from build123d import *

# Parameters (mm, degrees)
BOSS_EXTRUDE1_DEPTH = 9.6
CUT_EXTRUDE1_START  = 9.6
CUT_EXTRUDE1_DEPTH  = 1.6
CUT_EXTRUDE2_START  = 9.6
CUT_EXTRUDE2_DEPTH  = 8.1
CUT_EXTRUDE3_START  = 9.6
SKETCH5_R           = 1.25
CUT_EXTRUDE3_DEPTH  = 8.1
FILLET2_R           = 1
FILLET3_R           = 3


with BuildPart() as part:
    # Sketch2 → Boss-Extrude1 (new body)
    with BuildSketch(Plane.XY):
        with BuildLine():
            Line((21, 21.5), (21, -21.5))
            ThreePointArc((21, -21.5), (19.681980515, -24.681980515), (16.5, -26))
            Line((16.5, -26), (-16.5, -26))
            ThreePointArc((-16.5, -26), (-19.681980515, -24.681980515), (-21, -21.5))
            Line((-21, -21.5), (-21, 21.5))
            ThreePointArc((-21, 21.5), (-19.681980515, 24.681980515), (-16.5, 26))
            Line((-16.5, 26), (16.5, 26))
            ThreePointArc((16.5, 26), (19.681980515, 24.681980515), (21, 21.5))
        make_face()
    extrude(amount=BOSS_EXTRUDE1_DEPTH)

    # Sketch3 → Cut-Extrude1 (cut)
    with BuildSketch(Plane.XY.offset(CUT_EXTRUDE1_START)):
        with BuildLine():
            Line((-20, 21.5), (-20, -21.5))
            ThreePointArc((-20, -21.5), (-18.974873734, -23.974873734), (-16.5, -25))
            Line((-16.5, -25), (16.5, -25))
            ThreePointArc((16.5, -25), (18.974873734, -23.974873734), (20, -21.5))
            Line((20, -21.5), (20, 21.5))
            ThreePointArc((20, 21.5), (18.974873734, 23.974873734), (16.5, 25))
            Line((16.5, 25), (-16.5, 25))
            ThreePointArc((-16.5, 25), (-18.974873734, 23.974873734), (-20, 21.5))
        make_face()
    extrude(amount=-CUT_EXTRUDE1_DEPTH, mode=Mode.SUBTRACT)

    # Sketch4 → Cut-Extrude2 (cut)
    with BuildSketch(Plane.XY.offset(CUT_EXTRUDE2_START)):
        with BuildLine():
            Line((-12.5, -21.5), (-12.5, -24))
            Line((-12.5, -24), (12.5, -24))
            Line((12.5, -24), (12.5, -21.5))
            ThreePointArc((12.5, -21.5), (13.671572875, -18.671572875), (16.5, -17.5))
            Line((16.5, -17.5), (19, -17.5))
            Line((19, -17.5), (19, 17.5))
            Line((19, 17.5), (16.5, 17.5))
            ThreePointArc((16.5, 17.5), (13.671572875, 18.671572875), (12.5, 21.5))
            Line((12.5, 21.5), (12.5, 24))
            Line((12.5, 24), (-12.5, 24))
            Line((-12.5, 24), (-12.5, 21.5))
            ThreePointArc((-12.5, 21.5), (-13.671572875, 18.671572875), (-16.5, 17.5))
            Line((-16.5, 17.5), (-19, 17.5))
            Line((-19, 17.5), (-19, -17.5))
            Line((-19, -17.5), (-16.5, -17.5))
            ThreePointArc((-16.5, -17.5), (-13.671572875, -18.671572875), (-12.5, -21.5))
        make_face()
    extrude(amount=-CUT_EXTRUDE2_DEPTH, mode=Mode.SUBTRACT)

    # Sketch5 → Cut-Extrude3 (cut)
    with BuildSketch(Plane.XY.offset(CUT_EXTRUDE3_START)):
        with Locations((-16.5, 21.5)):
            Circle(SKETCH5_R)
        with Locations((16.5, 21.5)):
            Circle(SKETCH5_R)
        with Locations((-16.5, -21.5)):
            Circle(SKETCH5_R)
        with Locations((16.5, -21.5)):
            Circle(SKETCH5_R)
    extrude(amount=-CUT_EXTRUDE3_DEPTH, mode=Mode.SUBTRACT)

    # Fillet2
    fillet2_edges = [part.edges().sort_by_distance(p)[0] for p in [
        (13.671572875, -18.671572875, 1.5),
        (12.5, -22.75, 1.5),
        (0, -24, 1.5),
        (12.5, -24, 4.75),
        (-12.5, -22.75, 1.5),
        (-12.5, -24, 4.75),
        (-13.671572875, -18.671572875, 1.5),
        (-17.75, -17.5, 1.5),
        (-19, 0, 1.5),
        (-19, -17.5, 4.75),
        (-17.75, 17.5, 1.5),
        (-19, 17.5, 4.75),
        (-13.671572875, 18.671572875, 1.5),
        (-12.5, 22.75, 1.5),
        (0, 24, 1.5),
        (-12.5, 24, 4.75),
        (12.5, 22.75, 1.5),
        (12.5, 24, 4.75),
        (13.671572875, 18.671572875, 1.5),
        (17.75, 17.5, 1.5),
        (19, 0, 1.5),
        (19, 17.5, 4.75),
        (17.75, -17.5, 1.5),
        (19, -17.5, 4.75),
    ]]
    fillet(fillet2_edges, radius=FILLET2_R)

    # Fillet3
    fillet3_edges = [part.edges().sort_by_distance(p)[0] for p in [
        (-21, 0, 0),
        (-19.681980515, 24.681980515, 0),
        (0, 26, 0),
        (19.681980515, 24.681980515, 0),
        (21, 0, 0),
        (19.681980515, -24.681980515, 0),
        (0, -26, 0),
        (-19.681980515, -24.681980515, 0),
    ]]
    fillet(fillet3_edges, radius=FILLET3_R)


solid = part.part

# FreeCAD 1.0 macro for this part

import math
import FreeCAD as App
import Part
import Sketcher
Q = App.Units.Quantity


def edges_at(feature, points):
    """Names of the edges that pass closest to the given points."""
    edges = feature.Shape.Edges
    near = lambda p: min(range(len(edges)), key=lambda i: edges[i].distToShape(Part.Vertex(*p))[0])
    return sorted({f"Edge{near(p) + 1}" for p in points})

doc = App.newDocument("Part")
params = doc.addObject("Spreadsheet::Sheet", "Params")
for row, (alias, value) in enumerate([
    ("sketch1_radius", "4.5 mm"),
    ("sketch1_width", "33 mm"),
    ("sketch1_height", "43 mm"),
    ("pad1_length", "9.6 mm"),
    ("sketch2_radius", "3.5 mm"),
    ("sketch2_width", "33 mm"),
    ("sketch2_height", "43 mm"),
    ("pocket1_length", "1.6 mm"),
    ("sketch3_radius", "4 mm"),
    ("sketch3_width", "25 mm"),
    ("sketch3_height", "35 mm"),
    ("sketch3_width2", "2.5 mm"),
    ("pocket2_length", "8.1 mm"),
    ("sketch4_diameter", "2.5 mm"),
    ("pocket3_length", "8.1 mm"),
    ("fillet_radius", "1 mm"),
    ("fillet2_radius", "3 mm"),
], start=1):
    params.set(f"A{row}", alias)
    params.set(f"B{row}", "=" + value)
    params.setAlias(f"B{row}", alias)

body = doc.addObject("PartDesign::Body", "Body")

# Sketch on XY plane
sketch1 = body.newObject("Sketcher::SketchObject", "Sketch")
sketch1.AttachmentSupport = (doc.getObject("XY_Plane"), [""])
sketch1.MapMode = "FlatFace"
sketch1.addGeometry([
    Part.LineSegment(App.Vector(21, -21.5, 0), App.Vector(21, 21.5, 0)),  # 0
    Part.ArcOfCircle(Part.Circle(App.Vector(16.5, 21.5, 0), App.Vector(0, 0, 1), 4.5), math.radians(0), math.radians(90)),  # 1
    Part.LineSegment(App.Vector(16.5, 26, 0), App.Vector(-16.5, 26, 0)),  # 2
    Part.ArcOfCircle(Part.Circle(App.Vector(-16.5, 21.5, 0), App.Vector(0, 0, 1), 4.5), math.radians(90), math.radians(180)),  # 3
    Part.LineSegment(App.Vector(-21, 21.5, 0), App.Vector(-21, -21.5, 0)),  # 4
    Part.ArcOfCircle(Part.Circle(App.Vector(-16.5, -21.5, 0), App.Vector(0, 0, 1), 4.5), math.radians(-180), math.radians(-90)),  # 5
    Part.LineSegment(App.Vector(-16.5, -26, 0), App.Vector(16.5, -26, 0)),  # 6
    Part.ArcOfCircle(Part.Circle(App.Vector(16.5, -21.5, 0), App.Vector(0, 0, 1), 4.5), math.radians(-90), math.radians(0)),  # 7
], False)
sketch1.addConstraint([
    Sketcher.Constraint("Tangent", 0, 2, 1, 1),
    Sketcher.Constraint("Tangent", 1, 2, 2, 1),
    Sketcher.Constraint("Tangent", 2, 2, 3, 1),
    Sketcher.Constraint("Tangent", 3, 2, 4, 1),
    Sketcher.Constraint("Tangent", 4, 2, 5, 1),
    Sketcher.Constraint("Tangent", 5, 2, 6, 1),
    Sketcher.Constraint("Tangent", 6, 2, 7, 1),
    Sketcher.Constraint("Tangent", 7, 2, 0, 1),
    Sketcher.Constraint("Vertical", 0),
    Sketcher.Constraint("Horizontal", 2),
    Sketcher.Constraint("Vertical", 4),
    Sketcher.Constraint("Horizontal", 6),
    Sketcher.Constraint("Equal", 1, 3),
    Sketcher.Constraint("Equal", 3, 5),
    Sketcher.Constraint("Equal", 5, 7),
    Sketcher.Constraint("Symmetric", 1, 3, 5, 3, -1, 1),
    Sketcher.Constraint("Radius", 1, Q("4.5 mm")),
    Sketcher.Constraint("DistanceX", 2, 2, 2, 1, Q("33 mm")),
    Sketcher.Constraint("DistanceY", 0, 1, 0, 2, Q("43 mm")),
])
sketch1.setExpression("Constraints[16]", "Params.sketch1_radius")
sketch1.setExpression("Constraints[17]", "Params.sketch1_width")
sketch1.setExpression("Constraints[18]", "Params.sketch1_height")
pad1 = body.newObject("PartDesign::Pad", "Pad")
pad1.Profile = sketch1
pad1.setExpression("Length", "Params.pad1_length")

# Sketch on XY plane
sketch2 = body.newObject("Sketcher::SketchObject", "Sketch001")
sketch2.AttachmentSupport = (doc.getObject("XY_Plane"), [""])
sketch2.MapMode = "FlatFace"
sketch2.AttachmentOffset = App.Placement(App.Vector(0, 0, 9.6), App.Rotation())
sketch2.addGeometry([
    Part.LineSegment(App.Vector(-20, 21.5, 0), App.Vector(-20, -21.5, 0)),  # 0
    Part.ArcOfCircle(Part.Circle(App.Vector(-16.5, -21.5, 0), App.Vector(0, 0, 1), 3.5), math.radians(-180), math.radians(-90)),  # 1
    Part.LineSegment(App.Vector(-16.5, -25, 0), App.Vector(16.5, -25, 0)),  # 2
    Part.ArcOfCircle(Part.Circle(App.Vector(16.5, -21.5, 0), App.Vector(0, 0, 1), 3.5), math.radians(-90), math.radians(0)),  # 3
    Part.LineSegment(App.Vector(20, -21.5, 0), App.Vector(20, 21.5, 0)),  # 4
    Part.ArcOfCircle(Part.Circle(App.Vector(16.5, 21.5, 0), App.Vector(0, 0, 1), 3.5), math.radians(0), math.radians(90)),  # 5
    Part.LineSegment(App.Vector(16.5, 25, 0), App.Vector(-16.5, 25, 0)),  # 6
    Part.ArcOfCircle(Part.Circle(App.Vector(-16.5, 21.5, 0), App.Vector(0, 0, 1), 3.5), math.radians(90), math.radians(180)),  # 7
], False)
sketch2.addConstraint([
    Sketcher.Constraint("Tangent", 0, 2, 1, 1),
    Sketcher.Constraint("Tangent", 1, 2, 2, 1),
    Sketcher.Constraint("Tangent", 2, 2, 3, 1),
    Sketcher.Constraint("Tangent", 3, 2, 4, 1),
    Sketcher.Constraint("Tangent", 4, 2, 5, 1),
    Sketcher.Constraint("Tangent", 5, 2, 6, 1),
    Sketcher.Constraint("Tangent", 6, 2, 7, 1),
    Sketcher.Constraint("Tangent", 7, 2, 0, 1),
    Sketcher.Constraint("Vertical", 0),
    Sketcher.Constraint("Horizontal", 2),
    Sketcher.Constraint("Vertical", 4),
    Sketcher.Constraint("Horizontal", 6),
    Sketcher.Constraint("Equal", 1, 3),
    Sketcher.Constraint("Equal", 3, 5),
    Sketcher.Constraint("Equal", 5, 7),
    Sketcher.Constraint("Symmetric", 1, 3, 5, 3, -1, 1),
    Sketcher.Constraint("Radius", 1, Q("3.5 mm")),
    Sketcher.Constraint("DistanceX", 2, 1, 2, 2, Q("33 mm")),
    Sketcher.Constraint("DistanceY", 0, 2, 0, 1, Q("43 mm")),
])
sketch2.setExpression("Constraints[16]", "Params.sketch2_radius")
sketch2.setExpression("Constraints[17]", "Params.sketch2_width")
sketch2.setExpression("Constraints[18]", "Params.sketch2_height")
pocket1 = body.newObject("PartDesign::Pocket", "Pocket")
pocket1.Profile = sketch2
pocket1.setExpression("Length", "Params.pocket1_length")

# Sketch on XY plane
sketch3 = body.newObject("Sketcher::SketchObject", "Sketch002")
sketch3.AttachmentSupport = (doc.getObject("XY_Plane"), [""])
sketch3.MapMode = "FlatFace"
sketch3.AttachmentOffset = App.Placement(App.Vector(0, 0, 9.6), App.Rotation())
sketch3.addGeometry([
    Part.LineSegment(App.Vector(-12.5, -21.5, 0), App.Vector(-12.5, -24, 0)),  # 0
    Part.LineSegment(App.Vector(-12.5, -24, 0), App.Vector(12.5, -24, 0)),  # 1
    Part.LineSegment(App.Vector(12.5, -24, 0), App.Vector(12.5, -21.5, 0)),  # 2
    Part.ArcOfCircle(Part.Circle(App.Vector(16.5, -21.5, 0), App.Vector(0, 0, 1), 4), math.radians(90), math.radians(180)),  # 3
    Part.LineSegment(App.Vector(16.5, -17.5, 0), App.Vector(19, -17.5, 0)),  # 4
    Part.LineSegment(App.Vector(19, -17.5, 0), App.Vector(19, 17.5, 0)),  # 5
    Part.LineSegment(App.Vector(19, 17.5, 0), App.Vector(16.5, 17.5, 0)),  # 6
    Part.ArcOfCircle(Part.Circle(App.Vector(16.5, 21.5, 0), App.Vector(0, 0, 1), 4), math.radians(180), math.radians(270)),  # 7
    Part.LineSegment(App.Vector(12.5, 21.5, 0), App.Vector(12.5, 24, 0)),  # 8
    Part.LineSegment(App.Vector(12.5, 24, 0), App.Vector(-12.5, 24, 0)),  # 9
    Part.LineSegment(App.Vector(-12.5, 24, 0), App.Vector(-12.5, 21.5, 0)),  # 10
    Part.ArcOfCircle(Part.Circle(App.Vector(-16.5, 21.5, 0), App.Vector(0, 0, 1), 4), math.radians(-90), math.radians(0)),  # 11
    Part.LineSegment(App.Vector(-16.5, 17.5, 0), App.Vector(-19, 17.5, 0)),  # 12
    Part.LineSegment(App.Vector(-19, 17.5, 0), App.Vector(-19, -17.5, 0)),  # 13
    Part.LineSegment(App.Vector(-19, -17.5, 0), App.Vector(-16.5, -17.5, 0)),  # 14
    Part.ArcOfCircle(Part.Circle(App.Vector(-16.5, -21.5, 0), App.Vector(0, 0, 1), 4), math.radians(0), math.radians(90)),  # 15
], False)
sketch3.addConstraint([
    Sketcher.Constraint("Coincident", 0, 2, 1, 1),
    Sketcher.Constraint("Coincident", 1, 2, 2, 1),
    Sketcher.Constraint("Tangent", 2, 2, 3, 2),
    Sketcher.Constraint("Tangent", 3, 1, 4, 1),
    Sketcher.Constraint("Coincident", 4, 2, 5, 1),
    Sketcher.Constraint("Coincident", 5, 2, 6, 1),
    Sketcher.Constraint("Tangent", 6, 2, 7, 2),
    Sketcher.Constraint("Tangent", 7, 1, 8, 1),
    Sketcher.Constraint("Coincident", 8, 2, 9, 1),
    Sketcher.Constraint("Coincident", 9, 2, 10, 1),
    Sketcher.Constraint("Tangent", 10, 2, 11, 2),
    Sketcher.Constraint("Tangent", 11, 1, 12, 1),
    Sketcher.Constraint("Coincident", 12, 2, 13, 1),
    Sketcher.Constraint("Coincident", 13, 2, 14, 1),
    Sketcher.Constraint("Tangent", 14, 2, 15, 2),
    Sketcher.Constraint("Tangent", 15, 1, 0, 1),
    Sketcher.Constraint("Vertical", 0),
    Sketcher.Constraint("Horizontal", 1),
    Sketcher.Constraint("Vertical", 2),
    Sketcher.Constraint("Horizontal", 4),
    Sketcher.Constraint("Vertical", 5),
    Sketcher.Constraint("Horizontal", 6),
    Sketcher.Constraint("Vertical", 8),
    Sketcher.Constraint("Horizontal", 9),
    Sketcher.Constraint("Vertical", 10),
    Sketcher.Constraint("Horizontal", 12),
    Sketcher.Constraint("Vertical", 13),
    Sketcher.Constraint("Horizontal", 14),
    Sketcher.Constraint("Equal", 3, 7),
    Sketcher.Constraint("Equal", 7, 11),
    Sketcher.Constraint("Equal", 11, 15),
    Sketcher.Constraint("Symmetric", 3, 3, 11, 3, -1, 1),
    Sketcher.Constraint("Symmetric", 7, 3, 15, 3, -1, 1),
    Sketcher.Constraint("Symmetric", 7, 3, 11, 3, -2),
    Sketcher.Constraint("Equal", 6, 12),
    Sketcher.Constraint("Equal", 14, 0),
    Sketcher.Constraint("Equal", 2, 8),
    Sketcher.Constraint("Radius", 3, Q("4 mm")),
    Sketcher.Constraint("DistanceX", 1, 1, 1, 2, Q("25 mm")),
    Sketcher.Constraint("DistanceY", 5, 1, 5, 2, Q("35 mm")),
    Sketcher.Constraint("DistanceX", 4, 1, 4, 2, Q("2.5 mm")),
])
sketch3.setExpression("Constraints[37]", "Params.sketch3_radius")
sketch3.setExpression("Constraints[38]", "Params.sketch3_width")
sketch3.setExpression("Constraints[39]", "Params.sketch3_height")
sketch3.setExpression("Constraints[40]", "Params.sketch3_width2")
pocket2 = body.newObject("PartDesign::Pocket", "Pocket001")
pocket2.Profile = sketch3
pocket2.setExpression("Length", "Params.pocket2_length")

# Sketch on XY plane
sketch4 = body.newObject("Sketcher::SketchObject", "Sketch003")
sketch4.AttachmentSupport = (doc.getObject("XY_Plane"), [""])
sketch4.MapMode = "FlatFace"
sketch4.AttachmentOffset = App.Placement(App.Vector(0, 0, 9.6), App.Rotation())
sketch4.addGeometry([
    Part.Circle(App.Vector(-16.5, 21.5, 0), App.Vector(0, 0, 1), 1.2),
    Part.Circle(App.Vector(16.5, 21.5, 0), App.Vector(0, 0, 1), 1.2),
    Part.Circle(App.Vector(-16.5, -21.5, 0), App.Vector(0, 0, 1), 1.2),
    Part.Circle(App.Vector(16.5, -21.5, 0), App.Vector(0, 0, 1), 1.2),
], False)
sketch4.addConstraint([
    Sketcher.Constraint("Equal", 0, 1),
    Sketcher.Constraint("Equal", 1, 2),
    Sketcher.Constraint("Equal", 2, 3),
    Sketcher.Constraint("Symmetric", 1, 3, 2, 3, -1, 1),
    Sketcher.Constraint("Symmetric", 0, 3, 3, 3, -1, 1),
    Sketcher.Constraint("Symmetric", 0, 3, 1, 3, -2),
    Sketcher.Constraint("Diameter", 0, Q("2.5 mm")),
    Sketcher.Constraint("DistanceX", 0, 3, 1, 3, Q("33 mm")),
    Sketcher.Constraint("DistanceY", 2, 3, 0, 3, Q("43 mm")),
])
sketch4.setExpression("Constraints[6]", "Params.sketch4_diameter")
pocket3 = body.newObject("PartDesign::Pocket", "Pocket002")
pocket3.Profile = sketch4
pocket3.setExpression("Length", "Params.pocket3_length")
doc.recompute()

fillet = body.newObject("PartDesign::Fillet", "Fillet")
fillet.Base = (pocket3, edges_at(pocket3, [
    (13.672, -18.672, 1.5),
    (12.5, -22.75, 1.5),
    (0, -24, 1.5),
    (12.5, -24, 4.75),
    (-12.5, -22.75, 1.5),
    (-12.5, -24, 4.75),
    (-13.672, -18.672, 1.5),
    (-17.75, -17.5, 1.5),
    (-19, 0, 1.5),
    (-19, -17.5, 4.75),
    (-17.75, 17.5, 1.5),
    (-19, 17.5, 4.75),
    (-13.672, 18.672, 1.5),
    (-12.5, 22.75, 1.5),
    (0, 24, 1.5),
    (-12.5, 24, 4.75),
    (12.5, 22.75, 1.5),
    (12.5, 24, 4.75),
    (13.672, 18.672, 1.5),
    (17.75, 17.5, 1.5),
    (19, 0, 1.5),
    (19, 17.5, 4.75),
    (17.75, -17.5, 1.5),
    (19, -17.5, 4.75),
]))
fillet.setExpression("Radius", "Params.fillet_radius")
doc.recompute()

fillet2 = body.newObject("PartDesign::Fillet", "Fillet001")
fillet2.Base = (fillet, edges_at(fillet, [
    (-21, 0, 0),
    (-19.682, 24.682, 0),
    (0, 26, 0),
    (19.682, 24.682, 0),
    (21, 0, 0),
    (19.682, -24.682, 0),
    (0, -26, 0),
    (-19.682, -24.682, 0),
]))
fillet2.setExpression("Radius", "Params.fillet2_radius")

doc.recompute()
